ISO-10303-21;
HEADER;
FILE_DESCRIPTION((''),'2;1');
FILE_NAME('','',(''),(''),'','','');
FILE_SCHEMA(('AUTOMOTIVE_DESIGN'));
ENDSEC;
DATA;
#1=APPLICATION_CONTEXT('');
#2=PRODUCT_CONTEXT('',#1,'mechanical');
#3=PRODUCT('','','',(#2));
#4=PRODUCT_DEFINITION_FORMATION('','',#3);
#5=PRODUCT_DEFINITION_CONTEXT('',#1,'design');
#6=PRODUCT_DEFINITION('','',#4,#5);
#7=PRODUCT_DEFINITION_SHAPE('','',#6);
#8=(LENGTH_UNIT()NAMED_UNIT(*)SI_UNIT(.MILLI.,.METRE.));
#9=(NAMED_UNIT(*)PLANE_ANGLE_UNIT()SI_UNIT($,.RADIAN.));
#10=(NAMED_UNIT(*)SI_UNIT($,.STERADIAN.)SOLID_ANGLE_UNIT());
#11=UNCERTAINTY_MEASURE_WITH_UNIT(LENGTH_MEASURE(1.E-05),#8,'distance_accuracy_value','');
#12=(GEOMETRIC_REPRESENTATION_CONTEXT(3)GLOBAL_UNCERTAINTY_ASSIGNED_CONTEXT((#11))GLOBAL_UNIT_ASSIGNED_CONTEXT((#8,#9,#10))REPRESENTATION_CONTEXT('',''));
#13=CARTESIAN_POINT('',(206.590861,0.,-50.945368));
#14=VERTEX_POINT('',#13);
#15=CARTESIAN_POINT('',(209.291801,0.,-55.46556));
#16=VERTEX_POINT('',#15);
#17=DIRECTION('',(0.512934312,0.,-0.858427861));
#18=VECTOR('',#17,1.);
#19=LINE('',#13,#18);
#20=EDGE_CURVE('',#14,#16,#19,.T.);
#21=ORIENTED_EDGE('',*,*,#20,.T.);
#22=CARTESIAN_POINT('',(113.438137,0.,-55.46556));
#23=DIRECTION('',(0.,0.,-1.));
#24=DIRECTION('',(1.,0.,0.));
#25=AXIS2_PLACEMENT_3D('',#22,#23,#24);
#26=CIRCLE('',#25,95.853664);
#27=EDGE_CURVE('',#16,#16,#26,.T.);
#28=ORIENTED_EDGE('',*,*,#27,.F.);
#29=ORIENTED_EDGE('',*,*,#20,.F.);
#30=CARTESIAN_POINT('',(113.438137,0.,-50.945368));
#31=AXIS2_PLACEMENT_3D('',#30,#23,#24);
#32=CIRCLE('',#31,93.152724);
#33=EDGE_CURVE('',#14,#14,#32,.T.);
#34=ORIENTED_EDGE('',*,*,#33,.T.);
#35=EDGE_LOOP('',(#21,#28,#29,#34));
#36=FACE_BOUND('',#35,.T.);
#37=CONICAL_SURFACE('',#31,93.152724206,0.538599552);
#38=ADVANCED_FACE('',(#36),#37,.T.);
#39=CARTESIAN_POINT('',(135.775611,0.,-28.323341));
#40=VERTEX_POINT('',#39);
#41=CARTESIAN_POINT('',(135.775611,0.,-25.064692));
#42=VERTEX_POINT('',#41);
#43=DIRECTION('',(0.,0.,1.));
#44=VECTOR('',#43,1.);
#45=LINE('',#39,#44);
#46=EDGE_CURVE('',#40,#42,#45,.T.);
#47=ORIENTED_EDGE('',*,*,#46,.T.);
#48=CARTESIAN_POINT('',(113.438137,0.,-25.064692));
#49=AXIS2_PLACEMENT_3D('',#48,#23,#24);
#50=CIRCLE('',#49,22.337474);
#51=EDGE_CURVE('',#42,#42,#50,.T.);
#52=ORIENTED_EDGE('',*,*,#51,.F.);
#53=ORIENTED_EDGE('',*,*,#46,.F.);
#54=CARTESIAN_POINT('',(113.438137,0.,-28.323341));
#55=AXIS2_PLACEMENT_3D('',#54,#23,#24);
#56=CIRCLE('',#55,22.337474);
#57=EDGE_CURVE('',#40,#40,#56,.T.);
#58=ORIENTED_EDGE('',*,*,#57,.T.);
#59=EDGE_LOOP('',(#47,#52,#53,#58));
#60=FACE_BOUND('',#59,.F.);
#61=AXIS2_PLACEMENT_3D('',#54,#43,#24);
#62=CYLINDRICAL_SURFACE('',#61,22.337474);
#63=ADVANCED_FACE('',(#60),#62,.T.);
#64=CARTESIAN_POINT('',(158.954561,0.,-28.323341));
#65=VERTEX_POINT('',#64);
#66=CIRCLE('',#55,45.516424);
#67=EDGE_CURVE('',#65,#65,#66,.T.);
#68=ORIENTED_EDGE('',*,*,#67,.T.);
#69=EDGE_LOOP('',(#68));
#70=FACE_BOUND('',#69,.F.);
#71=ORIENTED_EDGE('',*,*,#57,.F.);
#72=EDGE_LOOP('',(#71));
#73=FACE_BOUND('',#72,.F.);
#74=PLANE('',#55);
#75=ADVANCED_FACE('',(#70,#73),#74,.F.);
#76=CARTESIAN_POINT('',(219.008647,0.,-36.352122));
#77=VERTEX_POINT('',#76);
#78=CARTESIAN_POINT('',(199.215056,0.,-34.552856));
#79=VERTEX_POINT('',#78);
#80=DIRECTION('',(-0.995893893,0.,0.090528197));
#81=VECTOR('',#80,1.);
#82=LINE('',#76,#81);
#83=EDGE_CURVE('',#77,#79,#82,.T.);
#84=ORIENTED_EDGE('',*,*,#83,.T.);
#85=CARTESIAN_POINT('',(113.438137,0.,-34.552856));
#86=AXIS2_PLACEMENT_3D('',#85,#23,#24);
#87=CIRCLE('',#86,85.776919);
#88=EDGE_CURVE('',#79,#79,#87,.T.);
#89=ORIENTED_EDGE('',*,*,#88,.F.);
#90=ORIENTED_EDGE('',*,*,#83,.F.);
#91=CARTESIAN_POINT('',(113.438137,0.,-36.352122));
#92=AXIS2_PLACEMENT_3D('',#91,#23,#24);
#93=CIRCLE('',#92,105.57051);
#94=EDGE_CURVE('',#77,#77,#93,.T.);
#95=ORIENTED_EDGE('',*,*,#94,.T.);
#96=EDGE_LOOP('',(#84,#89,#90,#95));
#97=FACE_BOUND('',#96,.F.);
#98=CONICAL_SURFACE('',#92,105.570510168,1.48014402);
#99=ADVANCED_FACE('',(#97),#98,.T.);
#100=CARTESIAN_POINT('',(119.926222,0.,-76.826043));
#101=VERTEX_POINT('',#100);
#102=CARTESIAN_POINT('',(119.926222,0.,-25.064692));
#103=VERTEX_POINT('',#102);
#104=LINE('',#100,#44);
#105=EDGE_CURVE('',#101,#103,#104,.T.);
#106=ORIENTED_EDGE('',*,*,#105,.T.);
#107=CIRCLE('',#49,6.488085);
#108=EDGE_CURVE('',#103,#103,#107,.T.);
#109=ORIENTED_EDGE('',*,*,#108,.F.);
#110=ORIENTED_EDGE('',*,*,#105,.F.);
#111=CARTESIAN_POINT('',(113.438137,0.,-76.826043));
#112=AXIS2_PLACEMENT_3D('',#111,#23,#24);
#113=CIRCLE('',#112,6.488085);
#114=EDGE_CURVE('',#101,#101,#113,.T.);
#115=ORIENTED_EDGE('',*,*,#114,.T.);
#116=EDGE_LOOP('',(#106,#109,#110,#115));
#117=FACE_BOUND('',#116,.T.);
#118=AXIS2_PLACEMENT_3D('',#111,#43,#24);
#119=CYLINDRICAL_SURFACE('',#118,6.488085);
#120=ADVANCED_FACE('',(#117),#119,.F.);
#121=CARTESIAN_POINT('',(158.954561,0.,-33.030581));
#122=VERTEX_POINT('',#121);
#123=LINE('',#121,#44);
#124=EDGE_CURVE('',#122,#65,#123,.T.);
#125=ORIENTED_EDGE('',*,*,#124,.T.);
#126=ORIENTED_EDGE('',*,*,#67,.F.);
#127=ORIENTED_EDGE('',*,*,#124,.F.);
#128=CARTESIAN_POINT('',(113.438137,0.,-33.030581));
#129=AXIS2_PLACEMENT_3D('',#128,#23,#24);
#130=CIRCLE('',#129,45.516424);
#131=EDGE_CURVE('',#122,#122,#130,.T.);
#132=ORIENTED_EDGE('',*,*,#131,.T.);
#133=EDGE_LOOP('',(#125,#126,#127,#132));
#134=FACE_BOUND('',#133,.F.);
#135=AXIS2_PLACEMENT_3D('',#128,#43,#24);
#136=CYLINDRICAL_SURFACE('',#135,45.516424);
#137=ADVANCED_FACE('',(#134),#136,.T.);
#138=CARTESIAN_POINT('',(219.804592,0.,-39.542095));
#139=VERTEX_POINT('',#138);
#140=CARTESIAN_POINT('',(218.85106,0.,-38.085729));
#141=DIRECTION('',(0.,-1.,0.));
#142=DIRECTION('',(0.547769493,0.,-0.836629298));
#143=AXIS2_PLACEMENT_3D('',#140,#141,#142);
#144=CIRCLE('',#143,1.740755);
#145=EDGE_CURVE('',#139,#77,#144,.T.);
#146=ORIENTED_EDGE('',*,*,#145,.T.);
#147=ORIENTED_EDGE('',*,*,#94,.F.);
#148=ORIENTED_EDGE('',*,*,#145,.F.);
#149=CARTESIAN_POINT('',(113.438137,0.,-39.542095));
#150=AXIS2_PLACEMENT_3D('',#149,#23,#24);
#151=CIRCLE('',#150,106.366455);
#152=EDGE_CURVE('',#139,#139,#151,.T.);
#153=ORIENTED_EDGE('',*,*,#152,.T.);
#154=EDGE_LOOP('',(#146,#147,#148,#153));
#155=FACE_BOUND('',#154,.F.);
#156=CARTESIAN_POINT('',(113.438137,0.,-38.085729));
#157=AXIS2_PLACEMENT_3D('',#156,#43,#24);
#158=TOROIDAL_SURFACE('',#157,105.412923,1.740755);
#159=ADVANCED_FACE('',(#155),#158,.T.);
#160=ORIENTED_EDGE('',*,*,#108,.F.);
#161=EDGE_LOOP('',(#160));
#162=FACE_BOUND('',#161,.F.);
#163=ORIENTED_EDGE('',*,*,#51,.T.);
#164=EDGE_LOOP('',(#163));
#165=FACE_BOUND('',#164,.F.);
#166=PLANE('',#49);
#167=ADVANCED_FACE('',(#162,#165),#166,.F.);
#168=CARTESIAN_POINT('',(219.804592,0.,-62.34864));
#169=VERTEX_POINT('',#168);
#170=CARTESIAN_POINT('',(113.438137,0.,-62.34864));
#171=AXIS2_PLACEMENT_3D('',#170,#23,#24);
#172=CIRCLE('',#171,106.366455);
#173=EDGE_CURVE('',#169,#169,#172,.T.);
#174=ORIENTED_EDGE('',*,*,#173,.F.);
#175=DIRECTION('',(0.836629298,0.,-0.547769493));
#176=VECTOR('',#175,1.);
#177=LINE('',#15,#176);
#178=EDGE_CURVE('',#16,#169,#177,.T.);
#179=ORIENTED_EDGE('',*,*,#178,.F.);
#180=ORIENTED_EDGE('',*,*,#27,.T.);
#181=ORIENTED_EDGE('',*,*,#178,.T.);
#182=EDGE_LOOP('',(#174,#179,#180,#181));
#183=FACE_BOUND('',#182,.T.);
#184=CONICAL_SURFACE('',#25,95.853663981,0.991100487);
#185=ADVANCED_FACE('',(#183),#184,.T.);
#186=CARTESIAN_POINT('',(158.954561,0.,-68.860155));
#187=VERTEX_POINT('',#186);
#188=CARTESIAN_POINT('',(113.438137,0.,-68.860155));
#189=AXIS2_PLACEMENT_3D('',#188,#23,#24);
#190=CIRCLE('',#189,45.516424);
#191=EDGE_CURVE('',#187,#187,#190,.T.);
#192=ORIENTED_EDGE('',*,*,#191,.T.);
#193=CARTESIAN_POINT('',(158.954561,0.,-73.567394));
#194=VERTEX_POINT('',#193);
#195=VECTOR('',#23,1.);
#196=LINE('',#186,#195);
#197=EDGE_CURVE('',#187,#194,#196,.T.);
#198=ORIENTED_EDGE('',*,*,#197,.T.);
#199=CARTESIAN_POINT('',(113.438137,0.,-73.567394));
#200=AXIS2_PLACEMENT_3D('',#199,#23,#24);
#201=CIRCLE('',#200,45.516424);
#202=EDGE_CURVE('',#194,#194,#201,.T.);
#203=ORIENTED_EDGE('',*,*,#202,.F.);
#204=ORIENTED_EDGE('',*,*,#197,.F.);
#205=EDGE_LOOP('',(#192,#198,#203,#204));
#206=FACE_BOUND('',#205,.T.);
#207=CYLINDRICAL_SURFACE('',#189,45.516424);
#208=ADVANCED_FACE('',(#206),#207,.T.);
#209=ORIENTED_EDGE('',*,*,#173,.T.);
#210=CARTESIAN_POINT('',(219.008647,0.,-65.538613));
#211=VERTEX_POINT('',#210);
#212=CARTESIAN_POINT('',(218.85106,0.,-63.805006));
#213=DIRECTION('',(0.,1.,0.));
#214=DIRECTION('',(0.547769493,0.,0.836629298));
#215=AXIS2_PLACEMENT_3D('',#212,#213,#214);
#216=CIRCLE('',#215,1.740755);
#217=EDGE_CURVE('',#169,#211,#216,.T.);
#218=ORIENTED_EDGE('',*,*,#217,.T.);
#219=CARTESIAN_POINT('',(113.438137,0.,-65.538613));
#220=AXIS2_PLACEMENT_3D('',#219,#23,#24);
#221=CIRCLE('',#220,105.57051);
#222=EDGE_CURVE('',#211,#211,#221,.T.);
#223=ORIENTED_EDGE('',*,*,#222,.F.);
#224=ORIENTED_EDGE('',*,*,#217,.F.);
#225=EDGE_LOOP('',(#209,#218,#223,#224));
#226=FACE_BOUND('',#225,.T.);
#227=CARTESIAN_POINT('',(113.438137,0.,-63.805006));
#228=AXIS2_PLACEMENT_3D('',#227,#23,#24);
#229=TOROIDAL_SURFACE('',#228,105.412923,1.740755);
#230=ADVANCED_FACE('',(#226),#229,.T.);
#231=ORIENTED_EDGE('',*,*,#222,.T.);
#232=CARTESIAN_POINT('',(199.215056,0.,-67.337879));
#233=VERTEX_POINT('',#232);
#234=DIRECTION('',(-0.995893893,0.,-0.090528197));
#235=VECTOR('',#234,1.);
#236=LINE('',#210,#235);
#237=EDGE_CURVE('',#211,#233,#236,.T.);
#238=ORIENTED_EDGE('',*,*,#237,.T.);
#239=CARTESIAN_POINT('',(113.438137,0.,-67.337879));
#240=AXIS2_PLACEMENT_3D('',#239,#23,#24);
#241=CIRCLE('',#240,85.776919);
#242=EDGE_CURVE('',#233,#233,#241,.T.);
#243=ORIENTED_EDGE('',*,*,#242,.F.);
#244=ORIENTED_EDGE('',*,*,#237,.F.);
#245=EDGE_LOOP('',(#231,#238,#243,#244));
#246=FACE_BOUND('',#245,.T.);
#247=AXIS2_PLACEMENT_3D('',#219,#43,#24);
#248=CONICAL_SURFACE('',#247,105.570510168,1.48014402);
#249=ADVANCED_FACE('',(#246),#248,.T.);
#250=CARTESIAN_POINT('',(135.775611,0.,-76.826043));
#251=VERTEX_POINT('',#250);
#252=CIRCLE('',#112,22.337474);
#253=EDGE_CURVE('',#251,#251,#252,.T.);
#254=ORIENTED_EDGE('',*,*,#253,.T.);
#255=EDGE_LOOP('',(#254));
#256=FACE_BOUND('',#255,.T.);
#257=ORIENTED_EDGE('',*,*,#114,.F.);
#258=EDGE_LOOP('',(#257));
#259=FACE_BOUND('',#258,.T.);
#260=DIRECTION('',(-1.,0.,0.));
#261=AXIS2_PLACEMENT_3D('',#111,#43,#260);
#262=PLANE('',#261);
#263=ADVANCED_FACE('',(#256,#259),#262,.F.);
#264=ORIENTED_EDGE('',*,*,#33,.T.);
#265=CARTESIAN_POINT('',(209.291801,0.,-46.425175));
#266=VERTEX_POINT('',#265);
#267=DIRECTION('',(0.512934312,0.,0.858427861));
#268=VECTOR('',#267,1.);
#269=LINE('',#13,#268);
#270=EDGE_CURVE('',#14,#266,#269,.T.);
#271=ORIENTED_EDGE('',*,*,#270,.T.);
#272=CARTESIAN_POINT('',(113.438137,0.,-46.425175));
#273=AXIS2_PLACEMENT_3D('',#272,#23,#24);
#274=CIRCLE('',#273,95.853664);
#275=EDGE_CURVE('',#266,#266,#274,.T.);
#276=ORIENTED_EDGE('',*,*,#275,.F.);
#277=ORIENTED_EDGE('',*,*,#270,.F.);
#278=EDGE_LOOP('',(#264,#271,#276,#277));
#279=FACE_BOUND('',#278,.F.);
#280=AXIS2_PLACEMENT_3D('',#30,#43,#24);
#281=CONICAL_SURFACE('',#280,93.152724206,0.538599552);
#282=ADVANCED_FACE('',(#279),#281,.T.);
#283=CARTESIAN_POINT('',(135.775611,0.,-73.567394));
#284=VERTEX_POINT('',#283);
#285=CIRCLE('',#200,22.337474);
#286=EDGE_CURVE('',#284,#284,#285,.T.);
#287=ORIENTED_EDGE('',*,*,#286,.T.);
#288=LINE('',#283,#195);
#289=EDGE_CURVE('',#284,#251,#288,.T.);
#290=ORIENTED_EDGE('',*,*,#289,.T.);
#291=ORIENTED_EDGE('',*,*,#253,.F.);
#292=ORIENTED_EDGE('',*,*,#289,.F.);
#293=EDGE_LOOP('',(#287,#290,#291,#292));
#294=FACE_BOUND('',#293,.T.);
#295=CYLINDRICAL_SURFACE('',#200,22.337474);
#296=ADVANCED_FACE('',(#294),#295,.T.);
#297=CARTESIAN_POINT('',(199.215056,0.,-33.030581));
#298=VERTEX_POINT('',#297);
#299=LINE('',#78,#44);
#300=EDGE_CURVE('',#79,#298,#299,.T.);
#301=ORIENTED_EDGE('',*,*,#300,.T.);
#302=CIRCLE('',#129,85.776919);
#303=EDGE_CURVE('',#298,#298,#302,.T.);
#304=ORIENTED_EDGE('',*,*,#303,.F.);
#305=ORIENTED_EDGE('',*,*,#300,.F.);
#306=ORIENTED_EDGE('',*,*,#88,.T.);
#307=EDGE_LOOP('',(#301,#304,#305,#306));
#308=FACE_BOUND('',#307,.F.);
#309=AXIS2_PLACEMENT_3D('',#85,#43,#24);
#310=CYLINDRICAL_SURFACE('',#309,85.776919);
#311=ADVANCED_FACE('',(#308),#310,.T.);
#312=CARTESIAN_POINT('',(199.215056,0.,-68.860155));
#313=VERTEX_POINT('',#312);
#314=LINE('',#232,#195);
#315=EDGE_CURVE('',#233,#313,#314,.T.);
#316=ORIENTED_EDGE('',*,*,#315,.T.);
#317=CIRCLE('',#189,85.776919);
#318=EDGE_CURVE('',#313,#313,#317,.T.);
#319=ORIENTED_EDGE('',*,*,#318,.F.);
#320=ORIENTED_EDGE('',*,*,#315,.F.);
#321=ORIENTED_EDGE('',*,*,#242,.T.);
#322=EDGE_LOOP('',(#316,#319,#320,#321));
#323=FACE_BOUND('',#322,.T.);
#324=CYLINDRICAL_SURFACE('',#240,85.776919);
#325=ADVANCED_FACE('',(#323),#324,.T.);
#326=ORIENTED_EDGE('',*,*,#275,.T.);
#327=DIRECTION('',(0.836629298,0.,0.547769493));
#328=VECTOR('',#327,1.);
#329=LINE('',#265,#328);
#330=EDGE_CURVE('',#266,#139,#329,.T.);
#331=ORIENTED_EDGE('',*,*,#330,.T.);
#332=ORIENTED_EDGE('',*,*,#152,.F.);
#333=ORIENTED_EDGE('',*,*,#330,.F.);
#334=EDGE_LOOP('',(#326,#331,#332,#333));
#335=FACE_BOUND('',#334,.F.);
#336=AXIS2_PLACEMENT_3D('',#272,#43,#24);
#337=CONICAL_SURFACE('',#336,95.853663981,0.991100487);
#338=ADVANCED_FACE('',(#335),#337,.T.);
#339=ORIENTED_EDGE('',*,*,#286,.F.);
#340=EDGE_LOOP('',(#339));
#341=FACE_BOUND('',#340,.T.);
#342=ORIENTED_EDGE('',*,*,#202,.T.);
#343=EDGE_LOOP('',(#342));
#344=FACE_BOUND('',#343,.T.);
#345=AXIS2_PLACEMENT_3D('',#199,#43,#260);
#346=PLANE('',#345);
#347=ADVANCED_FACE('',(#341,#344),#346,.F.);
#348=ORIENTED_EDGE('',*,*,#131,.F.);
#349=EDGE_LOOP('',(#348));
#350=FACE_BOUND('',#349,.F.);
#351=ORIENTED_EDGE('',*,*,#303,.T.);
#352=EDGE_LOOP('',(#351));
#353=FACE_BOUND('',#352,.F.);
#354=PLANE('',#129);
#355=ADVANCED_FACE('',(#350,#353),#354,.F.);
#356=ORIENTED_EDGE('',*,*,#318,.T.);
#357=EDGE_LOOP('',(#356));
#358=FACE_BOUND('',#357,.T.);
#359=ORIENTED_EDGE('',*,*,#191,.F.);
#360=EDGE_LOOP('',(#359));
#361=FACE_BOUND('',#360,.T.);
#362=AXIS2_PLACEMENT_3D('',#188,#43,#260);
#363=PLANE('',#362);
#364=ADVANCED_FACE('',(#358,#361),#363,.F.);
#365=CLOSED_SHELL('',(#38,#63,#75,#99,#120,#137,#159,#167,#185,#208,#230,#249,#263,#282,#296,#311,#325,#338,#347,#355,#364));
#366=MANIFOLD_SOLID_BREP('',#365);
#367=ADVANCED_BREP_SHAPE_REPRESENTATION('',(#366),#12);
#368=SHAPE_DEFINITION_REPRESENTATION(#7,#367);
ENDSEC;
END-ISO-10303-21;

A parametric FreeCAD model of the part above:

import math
import FreeCAD as App
import Part
import Sketcher
from FreeCAD import Vector

doc = App.newDocument("Part")
body = doc.addObject("PartDesign::Body", "Body")

# Sketch on XZ plane
sketch1 = body.newObject("Sketcher::SketchObject", "Sketch")
sketch1.AttachmentSupport = (doc.getObject("XZ_Plane"), [""])
sketch1.MapMode = "FlatFace"
sketch1.addGeometry([
    Part.LineSegment(Vector(119.926222, -50.945368, 0), Vector(206.590861, -50.945368, 0)),  # 0
    Part.LineSegment(Vector(206.590861, -50.945368, 0), Vector(209.291801, -46.425175, 0)),  # 1
    Part.LineSegment(Vector(209.291801, -46.425175, 0), Vector(219.804592, -39.542095, 0)),  # 2
    Part.ArcOfCircle(Part.Circle(Vector(218.85106, -38.085729, 0), Vector(0, 0, 1), 1.740755), math.radians(-56.785875), math.radians(84.806005)),  # 3
    Part.LineSegment(Vector(219.008647, -36.352122, 0), Vector(199.215056, -34.552856, 0)),  # 4
    Part.LineSegment(Vector(199.215056, -34.552856, 0), Vector(199.215056, -33.030581, 0)),  # 5
    Part.LineSegment(Vector(199.215056, -33.030581, 0), Vector(158.954561, -33.030581, 0)),  # 6
    Part.LineSegment(Vector(158.954561, -33.030581, 0), Vector(158.954561, -28.323341, 0)),  # 7
    Part.LineSegment(Vector(158.954561, -28.323341, 0), Vector(135.775611, -28.323341, 0)),  # 8
    Part.LineSegment(Vector(135.775611, -28.323341, 0), Vector(135.775611, -25.064692, 0)),  # 9
    Part.LineSegment(Vector(135.775611, -25.064692, 0), Vector(119.926222, -25.064692, 0)),  # 10
    Part.LineSegment(Vector(119.926222, -25.064692, 0), Vector(119.926222, -50.945368, 0)),  # 11
], False)
sketch1.addGeometry(Part.LineSegment(Vector(113.438137, -25.064692, 0), Vector(113.438137, -50.945368, 0)), True)  # axis
sketch1.addConstraint([
    Sketcher.Constraint("Coincident", 0, 2, 1, 1),
    Sketcher.Constraint("Coincident", 1, 2, 2, 1),
    Sketcher.Constraint("Tangent", 2, 2, 3, 1),
    Sketcher.Constraint("Tangent", 3, 2, 4, 1),
    Sketcher.Constraint("Coincident", 4, 2, 5, 1),
    Sketcher.Constraint("Coincident", 5, 2, 6, 1),
    Sketcher.Constraint("Coincident", 6, 2, 7, 1),
    Sketcher.Constraint("Coincident", 7, 2, 8, 1),
    Sketcher.Constraint("Coincident", 8, 2, 9, 1),
    Sketcher.Constraint("Coincident", 9, 2, 10, 1),
    Sketcher.Constraint("Coincident", 10, 2, 11, 1),
    Sketcher.Constraint("Coincident", 11, 2, 0, 1),
    Sketcher.Constraint("Horizontal", 0),
    Sketcher.Constraint("Vertical", 5),
    Sketcher.Constraint("Horizontal", 6),
    Sketcher.Constraint("Vertical", 7),
    Sketcher.Constraint("Horizontal", 8),
    Sketcher.Constraint("Vertical", 9),
    Sketcher.Constraint("Horizontal", 10),
    Sketcher.Constraint("Vertical", 11),
    Sketcher.Constraint("Vertical", 12),
    Sketcher.Constraint("Horizontal", 10, 2, 12, 1),
    Sketcher.Constraint("Horizontal", 11, 2, 12, 2),
    Sketcher.Constraint("Radius", 3, 1.740755),
    Sketcher.Constraint("Distance", 4, 19.875201),
    Sketcher.Constraint("DistanceX", 0, 1, 0, 2, 86.664639),
    Sketcher.Constraint("DistanceX", 8, 2, 8, 1, 23.17895),
    Sketcher.Constraint("DistanceX", 10, 2, 10, 1, 15.849389),
    Sketcher.Constraint("DistanceY", 7, 1, 7, 2, 4.70724),
    Sketcher.Constraint("DistanceY", 9, 1, 9, 2, 3.258649),
    Sketcher.Constraint("DistanceX", -1, 1, 1, 2, 209.291801),
    Sketcher.Constraint("DistanceX", 0, 2, 3, 3, 12.260199),
    Sketcher.Constraint("Distance", 2, 12.56565),
    Sketcher.Constraint("DistanceX", 6, 2, 6, 1, 40.260495),
    Sketcher.Constraint("DistanceY", 5, 1, 5, 2, 1.522275),
    Sketcher.Constraint("DistanceY", 11, 2, 11, 1, 25.880676),
    Sketcher.Constraint("DistanceX", -1, 1, 3, 3, 218.85106),
    Sketcher.Constraint("DistanceY", 3, 3, -1, 1, 38.085729),
    Sketcher.Constraint("DistanceX", -1, 1, 12, 1, 113.438137),
])
revolution = body.newObject("PartDesign::Revolution", "Revolution")
revolution.Profile = sketch1
revolution.ReferenceAxis = (sketch1, ["Axis0"])
revolution.Angle = 360
body2 = doc.addObject("PartDesign::Body", "Body001")
doc.recompute()

body2.BaseFeature = body
doc.recompute()

mirroring = doc.addObject("Part::Mirroring", "Mirroring")
mirroring.Source = body
mirroring.Base = Vector(113.438137, 0, -50.945368)
mirroring.Normal = Vector(0, 0, -1)
body3 = doc.addObject("PartDesign::Body", "Body002")
body3.BaseFeature = mirroring
boolean = body2.newObject("PartDesign::Boolean", "Boolean")
boolean.Type = "Fuse"
boolean.addObjects([body3])
doc.recompute()
mirroring.Visibility = False

doc.recompute()
